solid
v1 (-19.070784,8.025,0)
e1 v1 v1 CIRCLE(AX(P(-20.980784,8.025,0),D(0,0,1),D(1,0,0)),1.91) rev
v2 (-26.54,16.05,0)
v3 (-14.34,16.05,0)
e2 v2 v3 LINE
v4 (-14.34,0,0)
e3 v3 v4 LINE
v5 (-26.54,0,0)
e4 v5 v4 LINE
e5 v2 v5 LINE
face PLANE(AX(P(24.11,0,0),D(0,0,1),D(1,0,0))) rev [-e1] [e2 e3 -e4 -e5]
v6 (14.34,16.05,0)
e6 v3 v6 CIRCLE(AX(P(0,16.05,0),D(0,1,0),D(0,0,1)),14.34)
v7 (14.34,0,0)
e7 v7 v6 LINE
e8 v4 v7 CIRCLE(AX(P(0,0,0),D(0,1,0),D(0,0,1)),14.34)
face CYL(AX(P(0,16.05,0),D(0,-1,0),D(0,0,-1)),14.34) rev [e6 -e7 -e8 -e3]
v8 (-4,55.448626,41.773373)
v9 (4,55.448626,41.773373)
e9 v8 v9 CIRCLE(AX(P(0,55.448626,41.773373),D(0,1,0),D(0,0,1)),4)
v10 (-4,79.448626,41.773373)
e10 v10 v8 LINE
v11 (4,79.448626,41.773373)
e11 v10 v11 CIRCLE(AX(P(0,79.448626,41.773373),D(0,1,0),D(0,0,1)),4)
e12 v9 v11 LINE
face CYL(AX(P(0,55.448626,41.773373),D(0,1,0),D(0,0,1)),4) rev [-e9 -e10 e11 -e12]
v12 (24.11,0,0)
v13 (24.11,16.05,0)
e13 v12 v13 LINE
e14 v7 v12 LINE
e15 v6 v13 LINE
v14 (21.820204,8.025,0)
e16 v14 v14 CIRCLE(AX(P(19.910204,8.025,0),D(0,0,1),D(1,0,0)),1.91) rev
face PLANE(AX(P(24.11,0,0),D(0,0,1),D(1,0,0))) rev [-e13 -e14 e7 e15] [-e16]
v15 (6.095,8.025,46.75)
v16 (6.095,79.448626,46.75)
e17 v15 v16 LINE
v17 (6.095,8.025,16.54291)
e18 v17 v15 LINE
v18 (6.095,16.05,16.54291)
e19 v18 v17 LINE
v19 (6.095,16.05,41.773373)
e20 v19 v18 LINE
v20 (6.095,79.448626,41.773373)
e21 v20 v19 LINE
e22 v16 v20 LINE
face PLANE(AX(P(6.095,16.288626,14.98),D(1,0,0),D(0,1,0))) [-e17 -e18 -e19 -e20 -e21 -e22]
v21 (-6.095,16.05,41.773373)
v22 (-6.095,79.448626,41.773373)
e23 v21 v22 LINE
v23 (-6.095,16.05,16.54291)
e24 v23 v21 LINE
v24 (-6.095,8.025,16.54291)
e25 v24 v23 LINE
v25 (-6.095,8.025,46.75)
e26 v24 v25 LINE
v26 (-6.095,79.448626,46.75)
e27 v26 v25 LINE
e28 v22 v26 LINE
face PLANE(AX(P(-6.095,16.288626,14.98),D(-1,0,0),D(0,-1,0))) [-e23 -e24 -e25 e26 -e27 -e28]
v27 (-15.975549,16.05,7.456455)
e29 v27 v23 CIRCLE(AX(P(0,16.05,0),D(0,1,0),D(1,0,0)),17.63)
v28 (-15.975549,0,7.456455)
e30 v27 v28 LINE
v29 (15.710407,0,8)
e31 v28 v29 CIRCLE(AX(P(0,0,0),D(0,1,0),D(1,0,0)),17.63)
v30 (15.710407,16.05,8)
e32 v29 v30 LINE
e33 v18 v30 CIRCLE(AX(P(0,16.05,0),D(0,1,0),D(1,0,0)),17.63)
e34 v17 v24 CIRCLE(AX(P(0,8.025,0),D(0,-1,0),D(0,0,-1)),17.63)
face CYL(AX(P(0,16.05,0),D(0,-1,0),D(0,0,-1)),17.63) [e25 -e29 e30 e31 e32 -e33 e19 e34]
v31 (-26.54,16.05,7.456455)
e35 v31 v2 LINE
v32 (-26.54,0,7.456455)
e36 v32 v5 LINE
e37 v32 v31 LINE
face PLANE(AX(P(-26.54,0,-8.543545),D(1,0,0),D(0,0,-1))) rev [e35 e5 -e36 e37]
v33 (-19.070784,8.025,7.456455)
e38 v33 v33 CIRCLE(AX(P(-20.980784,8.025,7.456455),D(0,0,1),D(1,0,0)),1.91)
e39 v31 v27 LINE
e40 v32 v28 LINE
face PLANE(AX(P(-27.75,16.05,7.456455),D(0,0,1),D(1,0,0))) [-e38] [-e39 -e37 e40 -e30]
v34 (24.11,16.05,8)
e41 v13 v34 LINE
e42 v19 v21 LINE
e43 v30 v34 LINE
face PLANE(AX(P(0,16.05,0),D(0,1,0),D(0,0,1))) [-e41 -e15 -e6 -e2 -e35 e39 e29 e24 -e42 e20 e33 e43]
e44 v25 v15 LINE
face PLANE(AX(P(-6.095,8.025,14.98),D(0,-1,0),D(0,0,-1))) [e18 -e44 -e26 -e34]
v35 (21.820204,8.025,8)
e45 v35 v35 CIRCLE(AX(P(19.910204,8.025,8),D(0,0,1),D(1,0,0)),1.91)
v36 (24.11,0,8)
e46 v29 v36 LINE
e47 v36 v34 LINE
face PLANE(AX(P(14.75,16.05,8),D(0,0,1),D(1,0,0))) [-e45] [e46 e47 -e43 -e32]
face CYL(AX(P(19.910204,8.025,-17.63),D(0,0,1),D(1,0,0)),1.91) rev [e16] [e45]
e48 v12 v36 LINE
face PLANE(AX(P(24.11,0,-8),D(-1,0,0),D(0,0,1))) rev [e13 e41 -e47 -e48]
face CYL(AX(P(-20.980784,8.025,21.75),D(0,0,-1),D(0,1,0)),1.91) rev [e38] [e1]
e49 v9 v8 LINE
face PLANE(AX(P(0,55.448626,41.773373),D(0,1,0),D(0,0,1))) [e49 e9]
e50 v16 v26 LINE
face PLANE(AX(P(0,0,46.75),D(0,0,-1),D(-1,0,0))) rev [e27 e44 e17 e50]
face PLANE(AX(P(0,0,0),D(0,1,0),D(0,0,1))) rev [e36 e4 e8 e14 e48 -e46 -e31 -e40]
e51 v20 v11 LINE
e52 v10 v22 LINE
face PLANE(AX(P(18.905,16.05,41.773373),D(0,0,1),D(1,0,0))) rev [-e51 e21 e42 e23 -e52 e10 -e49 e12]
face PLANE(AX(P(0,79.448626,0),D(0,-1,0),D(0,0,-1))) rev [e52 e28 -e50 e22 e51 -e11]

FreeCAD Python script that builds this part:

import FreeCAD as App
import Part
import Sketcher

V = App.Vector
Q = App.Units.Quantity

doc = App.newDocument("Part")
body = doc.addObject("PartDesign::Body", "Body")

sketch1 = body.newObject("Sketcher::SketchObject", "Sketch")
sketch1.AttachmentSupport = (doc.getObject("XZ_Plane"), [""])
sketch1.MapMode = "FlatFace"
sketch1.addGeometry([
    Part.Circle(V(0, 0, 0), V(0, 0, 1), 18),
    Part.Circle(V(0, 0, 0), V(0, 0, 1), 14),
], False)
sketch1.addConstraint([
    Sketcher.Constraint("Coincident", 0, 3, -1, 1),
    Sketcher.Constraint("Coincident", 1, 3, -1, 1),
    Sketcher.Constraint("Diameter", 0, Q("35.26 mm")),
    Sketcher.Constraint("Diameter", 1, Q("28.68 mm")),
])
pad1 = body.newObject("PartDesign::Pad", "Pad")
pad1.Profile = sketch1
pad1.Length = 16.05
pad1.Reversed = True

sketch2 = body.newObject("Sketcher::SketchObject", "Sketch001")
sketch2.AttachmentSupport = (doc.getObject("YZ_Plane"), [""])
sketch2.MapMode = "FlatFace"
sketch2.AttachmentOffset = App.Placement(V(0, 0, 17.75), App.Rotation())
sketch2.addGeometry([
    Part.LineSegment(V(16, 8, 0), V(0, 8, 0)),
    Part.LineSegment(V(0, 8, 0), V(0, -8, 0)),
    Part.LineSegment(V(0, -8, 0), V(16, -8, 0)),
    Part.LineSegment(V(16, -8, 0), V(16, 8, 0)),
], False)
sketch2.addConstraint([
    Sketcher.Constraint("Coincident", 0, 2, 1, 1),
    Sketcher.Constraint("Coincident", 1, 2, 2, 1),
    Sketcher.Constraint("Coincident", 2, 2, 3, 1),
    Sketcher.Constraint("Coincident", 3, 2, 0, 1),
    Sketcher.Constraint("Horizontal", 0),
    Sketcher.Constraint("Vertical", 1),
    Sketcher.Constraint("Horizontal", 2),
    Sketcher.Constraint("Vertical", 3),
    Sketcher.Constraint("Symmetric", 0, 2, 1, 2, -1, 1),
    Sketcher.Constraint("DistanceY", 1, 2, 1, 1, Q("16 mm")),
    Sketcher.Constraint("DistanceX", 0, 2, 0, 1, Q("16.05 mm")),
])
pad2 = body.newObject("PartDesign::Pad", "Pad001")
pad2.Profile = sketch2
pad2.Type = "TwoLengths"
pad2.Length = 9.77
pad2.Length2 = 3

sketch3 = body.newObject("Sketcher::SketchObject", "Sketch002")
sketch3.AttachmentSupport = (doc.getObject("XZ_Plane"), [""])
sketch3.MapMode = "FlatFace"
sketch3.AttachmentOffset = App.Placement(V(0, 0, -16.05), App.Rotation())
sketch3.addGeometry([
    Part.LineSegment(V(24.1, -8, 0), V(24.1, 8, 0)),
    Part.LineSegment(V(24.1, 8, 0), V(27.5, 8, 0)),
    Part.LineSegment(V(27.5, 8, 0), V(27.5, -8, 0)),
    Part.LineSegment(V(27.5, -8, 0), V(24.1, -8, 0)),
], False)
sketch3.addConstraint([
    Sketcher.Constraint("Coincident", 0, 2, 1, 1),
    Sketcher.Constraint("Coincident", 1, 2, 2, 1),
    Sketcher.Constraint("Coincident", 2, 2, 3, 1),
    Sketcher.Constraint("Coincident", 3, 2, 0, 1),
    Sketcher.Constraint("Vertical", 0),
    Sketcher.Constraint("Horizontal", 1),
    Sketcher.Constraint("Vertical", 2),
    Sketcher.Constraint("Horizontal", 3),
    Sketcher.Constraint("DistanceY", 0, 1, 0, 2, Q("16 mm")),
    Sketcher.Constraint("DistanceY", -1, 1, 0, 2, Q("8 mm")),
    Sketcher.Constraint("DistanceX", 1, 1, 1, 2, Q("3.41 mm")),
    Sketcher.Constraint("DistanceX", -1, 1, 0, 2, Q("24.11 mm")),
])
pocket1 = body.newObject("PartDesign::Pocket", "Pocket")
pocket1.Profile = sketch3
pocket1.Type = "ThroughAll"
pocket1.Reversed = True

sketch4 = body.newObject("Sketcher::SketchObject", "Sketch003")
sketch4.AttachmentSupport = (doc.getObject("XY_Plane"), [""])
sketch4.MapMode = "FlatFace"
sketch4.AttachmentOffset = App.Placement(V(0, 0, 8), App.Rotation())
sketch4.addGeometry(Part.Circle(V(19.9, 8, 0), V(0, 0, 1), 1.9), False)
sketch4.addConstraint([
    Sketcher.Constraint("Diameter", 0, Q("3.82 mm")),
    Sketcher.Constraint("DistanceY", -1, 1, 0, 3, Q("8.025 mm")),
    Sketcher.Constraint("DistanceX", -1, 1, 0, 3, Q("19.910204 mm")),
])
pocket2 = body.newObject("PartDesign::Pocket", "Pocket001")
pocket2.Profile = sketch4
pocket2.Type = "ThroughAll"

sketch5 = body.newObject("Sketcher::SketchObject", "Sketch004")
sketch5.AttachmentSupport = (doc.getObject("XY_Plane"), [""])
sketch5.MapMode = "FlatFace"
sketch5.AttachmentOffset = App.Placement(V(0, 0, 17.75), App.Rotation())
sketch5.addGeometry([
    Part.LineSegment(V(-6, 16, 0), V(-6, 8, 0)),
    Part.LineSegment(V(-6, 8, 0), V(6, 8, 0)),
    Part.LineSegment(V(6, 8, 0), V(6, 16, 0)),
    Part.LineSegment(V(6, 16, 0), V(-6, 16, 0)),
], False)
sketch5.addConstraint([
    Sketcher.Constraint("Coincident", 0, 2, 1, 1),
    Sketcher.Constraint("Coincident", 1, 2, 2, 1),
    Sketcher.Constraint("Coincident", 2, 2, 3, 1),
    Sketcher.Constraint("Coincident", 3, 2, 0, 1),
    Sketcher.Constraint("Vertical", 0),
    Sketcher.Constraint("Horizontal", 1),
    Sketcher.Constraint("Vertical", 2),
    Sketcher.Constraint("Horizontal", 3),
    Sketcher.Constraint("DistanceX", 1, 1, 1, 2, Q("12.19 mm")),
    Sketcher.Constraint("DistanceX", 0, 2, -1, 1, Q("6.095 mm")),
    Sketcher.Constraint("DistanceY", -1, 1, 0, 2, Q("8.025 mm")),
    Sketcher.Constraint("DistanceY", 0, 2, 0, 1, Q("8.263626 mm")),
])
pad3 = body.newObject("PartDesign::Pad", "Pad002")
pad3.Profile = sketch5
pad3.Type = "TwoLengths"
pad3.Length = 4
pad3.Length2 = 2.77

sketch6 = body.newObject("Sketcher::SketchObject", "Sketch005")
sketch6.AttachmentSupport = (doc.getObject("XZ_Plane"), [""])
sketch6.MapMode = "FlatFace"
sketch6.AttachmentOffset = App.Placement(V(0, 0, -16.288626), App.Rotation())
sketch6.addGeometry([
    Part.LineSegment(V(-6, 15, 0), V(-6, 22, 0)),
    Part.LineSegment(V(-6, 22, 0), V(6, 22, 0)),
    Part.LineSegment(V(6, 22, 0), V(6, 15, 0)),
    Part.LineSegment(V(6, 15, 0), V(-6, 15, 0)),
], False)
sketch6.addConstraint([
    Sketcher.Constraint("Coincident", 0, 2, 1, 1),
    Sketcher.Constraint("Coincident", 1, 2, 2, 1),
    Sketcher.Constraint("Coincident", 2, 2, 3, 1),
    Sketcher.Constraint("Coincident", 3, 2, 0, 1),
    Sketcher.Constraint("Vertical", 0),
    Sketcher.Constraint("Horizontal", 1),
    Sketcher.Constraint("Vertical", 2),
    Sketcher.Constraint("Horizontal", 3),
    Sketcher.Constraint("DistanceX", 1, 1, 1, 2, Q("12.19 mm")),
    Sketcher.Constraint("DistanceY", 0, 1, 0, 2, Q("6.77 mm")),
    Sketcher.Constraint("DistanceY", -1, 1, 0, 2, Q("21.75 mm")),
    Sketcher.Constraint("DistanceX", 0, 2, -1, 1, Q("6.095 mm")),
])
pad4 = body.newObject("PartDesign::Pad", "Pad003")
pad4.Profile = sketch6
pad4.Length = 63
pad4.Reversed = True

sketch7 = body.newObject("Sketcher::SketchObject", "Sketch006")
sketch7.AttachmentSupport = (doc.getObject("XZ_Plane"), [""])
sketch7.MapMode = "FlatFace"
sketch7.AttachmentOffset = App.Placement(V(0, 0, -79.288626), App.Rotation())
sketch7.addGeometry([
    Part.LineSegment(V(-6, 15, 0), V(-6, 22, 0)),
    Part.LineSegment(V(-6, 22, 0), V(6, 22, 0)),
    Part.LineSegment(V(6, 22, 0), V(6, 15, 0)),
    Part.LineSegment(V(6, 15, 0), V(-6, 15, 0)),
], False)
sketch7.addConstraint([
    Sketcher.Constraint("Coincident", 0, 2, 1, 1),
    Sketcher.Constraint("Coincident", 1, 2, 2, 1),
    Sketcher.Constraint("Coincident", 2, 2, 3, 1),
    Sketcher.Constraint("Coincident", 3, 2, 0, 1),
    Sketcher.Constraint("Vertical", 0),
    Sketcher.Constraint("Horizontal", 1),
    Sketcher.Constraint("Vertical", 2),
    Sketcher.Constraint("Horizontal", 3),
    Sketcher.Constraint("DistanceX", 1, 1, 1, 2, Q("12.19 mm")),
    Sketcher.Constraint("DistanceY", 0, 1, 0, 2, Q("6.77 mm")),
    Sketcher.Constraint("DistanceY", -1, 1, 0, 2, Q("21.75 mm")),
    Sketcher.Constraint("DistanceX", 0, 2, -1, 1, Q("6.095 mm")),
])
pad5 = body.newObject("PartDesign::Pad", "Pad004")
pad5.Profile = sketch7
pad5.Length = 0.16
pad5.Reversed = True

sketch8 = body.newObject("Sketcher::SketchObject", "Sketch007")
sketch8.AttachmentSupport = (doc.getObject("YZ_Plane"), [""])
sketch8.MapMode = "FlatFace"
sketch8.AttachmentOffset = App.Placement(V(0, 0, -17.75), App.Rotation())
sketch8.addGeometry([
    Part.LineSegment(V(16, 7, 0), V(0, 7, 0)),
    Part.LineSegment(V(0, 7, 0), V(0, -9, 0)),
    Part.LineSegment(V(0, -9, 0), V(16, -9, 0)),
    Part.LineSegment(V(16, -9, 0), V(16, 7, 0)),
], False)
sketch8.addConstraint([
    Sketcher.Constraint("Coincident", 0, 2, 1, 1),
    Sketcher.Constraint("Coincident", 1, 2, 2, 1),
    Sketcher.Constraint("Coincident", 2, 2, 3, 1),
    Sketcher.Constraint("Coincident", 3, 2, 0, 1),
    Sketcher.Constraint("Horizontal", 0),
    Sketcher.Constraint("Vertical", 1),
    Sketcher.Constraint("Horizontal", 2),
    Sketcher.Constraint("Vertical", 3),
    Sketcher.Constraint("PointOnObject", 0, 2, -2),
    Sketcher.Constraint("DistanceY", 1, 2, 1, 1, Q("16 mm")),
    Sketcher.Constraint("DistanceX", 0, 2, 0, 1, Q("16.05 mm")),
    Sketcher.Constraint("DistanceY", -1, 1, 0, 2, Q("7.456455 mm")),
])
pad6 = body.newObject("PartDesign::Pad", "Pad005")
pad6.Profile = sketch8
pad6.Type = "TwoLengths"
pad6.Length = 3.16
pad6.Length2 = 10

sketch9 = body.newObject("Sketcher::SketchObject", "Sketch008")
sketch9.AttachmentSupport = (doc.getObject("XZ_Plane"), [""])
sketch9.MapMode = "FlatFace"
sketch9.AttachmentOffset = App.Placement(V(0, 0, -16.05), App.Rotation())
sketch9.addGeometry([
    Part.LineSegment(V(-27.8, -8.5, 0), V(-27.8, 7.5, 0)),
    Part.LineSegment(V(-27.8, 7.5, 0), V(-26.5, 7.5, 0)),
    Part.LineSegment(V(-26.5, 7.5, 0), V(-26.5, -8.5, 0)),
    Part.LineSegment(V(-26.5, -8.5, 0), V(-27.8, -8.5, 0)),
], False)
sketch9.addConstraint([
    Sketcher.Constraint("Coincident", 0, 2, 1, 1),
    Sketcher.Constraint("Coincident", 1, 2, 2, 1),
    Sketcher.Constraint("Coincident", 2, 2, 3, 1),
    Sketcher.Constraint("Coincident", 3, 2, 0, 1),
    Sketcher.Constraint("Vertical", 0),
    Sketcher.Constraint("Horizontal", 1),
    Sketcher.Constraint("Vertical", 2),
    Sketcher.Constraint("Horizontal", 3),
    Sketcher.Constraint("DistanceY", 0, 1, 0, 2, Q("16 mm")),
    Sketcher.Constraint("DistanceX", 1, 1, 1, 2, Q("1.21 mm")),
    Sketcher.Constraint("DistanceX", 0, 2, -1, 1, Q("27.75 mm")),
    Sketcher.Constraint("DistanceY", -1, 1, 0, 2, Q("7.456455 mm")),
])
pocket3 = body.newObject("PartDesign::Pocket", "Pocket002")
pocket3.Profile = sketch9
pocket3.Type = "ThroughAll"
pocket3.Reversed = True

sketch10 = body.newObject("Sketcher::SketchObject", "Sketch009")
sketch10.AttachmentSupport = (doc.getObject("XY_Plane"), [""])
sketch10.MapMode = "FlatFace"
sketch10.AttachmentOffset = App.Placement(V(0, 0, -8.543545), App.Rotation())
sketch10.addGeometry(Part.Circle(V(-21, 8, 0), V(0, 0, 1), 1.9), False)
sketch10.addConstraint([
    Sketcher.Constraint("Diameter", 0, Q("3.82 mm")),
    Sketcher.Constraint("DistanceY", -1, 1, 0, 3, Q("8.025 mm")),
    Sketcher.Constraint("DistanceX", 0, 3, -1, 1, Q("20.980784 mm")),
])
pocket4 = body.newObject("PartDesign::Pocket", "Pocket003")
pocket4.Profile = sketch10
pocket4.Type = "ThroughAll"
pocket4.Reversed = True

sketch11 = body.newObject("Sketcher::SketchObject", "Sketch010")
sketch11.AttachmentSupport = (doc.getObject("XZ_Plane"), [""])
sketch11.MapMode = "FlatFace"
sketch11.AttachmentOffset = App.Placement(V(0, 0, -79.448626), App.Rotation())
sketch11.addGeometry(Part.Circle(V(0, 15, 0), V(0, 0, 1), 4), False)
sketch11.addConstraint([
    Sketcher.Constraint("PointOnObject", 0, 3, -2),
    Sketcher.Constraint("Diameter", 0, Q("8.1 mm")),
    Sketcher.Constraint("DistanceY", -1, 1, 0, 3, Q("14.98 mm")),
])
pocket5 = body.newObject("PartDesign::Pocket", "Pocket004")
pocket5.Profile = sketch11
pocket5.Length = 24
pocket5.Reversed = True

sketch12 = body.newObject("Sketcher::SketchObject", "Sketch011")
sketch12.AttachmentSupport = (doc.getObject("XZ_Plane"), [""])
sketch12.MapMode = "FlatFace"
sketch12.AttachmentOffset = App.Placement(V(0, 0, -16.05), App.Rotation())
sketch12.addGeometry([
    Part.LineSegment(V(-32, -20, 0), V(-32, 0, 0)),
    Part.LineSegment(V(-32, 0, 0), V(24, 0, 0)),
    Part.LineSegment(V(24, 0, 0), V(24, -20, 0)),
    Part.LineSegment(V(24, -20, 0), V(-32, -20, 0)),
], False)
sketch12.addConstraint([
    Sketcher.Constraint("Coincident", 0, 2, 1, 1),
    Sketcher.Constraint("Coincident", 1, 2, 2, 1),
    Sketcher.Constraint("Coincident", 2, 2, 3, 1),
    Sketcher.Constraint("Coincident", 3, 2, 0, 1),
    Sketcher.Constraint("Vertical", 0),
    Sketcher.Constraint("Horizontal", 1),
    Sketcher.Constraint("Vertical", 2),
    Sketcher.Constraint("Horizontal", 3),
    Sketcher.Constraint("PointOnObject", 0, 2, -1),
    Sketcher.Constraint("DistanceX", -1, 1, 1, 2, Q("24.11 mm")),
    Sketcher.Constraint("DistanceX", 1, 1, 1, 2, Q("56.400519 mm")),
    Sketcher.Constraint("DistanceY", 0, 1, 0, 2, Q("19.93501 mm")),
])
pocket6 = body.newObject("PartDesign::Pocket", "Pocket005")
pocket6.Profile = sketch12
pocket6.Type = "ThroughAll"
pocket6.Reversed = True

sketch13 = body.newObject("Sketcher::SketchObject", "Sketch012")
sketch13.AttachmentSupport = (doc.getObject("XY_Plane"), [""])
sketch13.MapMode = "FlatFace"
sketch13.AttachmentOffset = App.Placement(V(0, 0, 21.75), App.Rotation())
sketch13.addGeometry([
    Part.LineSegment(V(-6, 79, 0), V(-6, 8, 0)),
    Part.LineSegment(V(-6, 8, 0), V(6, 8, 0)),
    Part.LineSegment(V(6, 8, 0), V(6, 79, 0)),
    Part.LineSegment(V(6, 79, 0), V(-6, 79, 0)),
], False)
sketch13.addConstraint([
    Sketcher.Constraint("Coincident", 0, 2, 1, 1),
    Sketcher.Constraint("Coincident", 1, 2, 2, 1),
    Sketcher.Constraint("Coincident", 2, 2, 3, 1),
    Sketcher.Constraint("Coincident", 3, 2, 0, 1),
    Sketcher.Constraint("Vertical", 0),
    Sketcher.Constraint("Horizontal", 1),
    Sketcher.Constraint("Vertical", 2),
    Sketcher.Constraint("Horizontal", 3),
    Sketcher.Constraint("DistanceX", 1, 1, 1, 2, Q("12.19 mm")),
    Sketcher.Constraint("DistanceX", 0, 2, -1, 1, Q("6.095 mm")),
    Sketcher.Constraint("DistanceY", -1, 1, 0, 2, Q("8.025 mm")),
    Sketcher.Constraint("DistanceY", 0, 2, 0, 1, Q("71.423626 mm")),
])
pad7 = body.newObject("PartDesign::Pad", "Pad006")
pad7.Profile = sketch13
pad7.Length = 25

sketch14 = body.newObject("Sketcher::SketchObject", "Sketch013")
sketch14.AttachmentSupport = (doc.getObject("YZ_Plane"), [""])
sketch14.MapMode = "FlatFace"
sketch14.AttachmentOffset = App.Placement(V(0, 0, -6.095), App.Rotation())
sketch14.addGeometry([
    Part.LineSegment(V(79, 15, 0), V(16, 15, 0)),
    Part.LineSegment(V(16, 15, 0), V(16, 42, 0)),
    Part.LineSegment(V(16, 42, 0), V(79, 42, 0)),
    Part.LineSegment(V(79, 42, 0), V(79, 15, 0)),
], False)
sketch14.addConstraint([
    Sketcher.Constraint("Coincident", 0, 2, 1, 1),
    Sketcher.Constraint("Coincident", 1, 2, 2, 1),
    Sketcher.Constraint("Coincident", 2, 2, 3, 1),
    Sketcher.Constraint("Coincident", 3, 2, 0, 1),
    Sketcher.Constraint("Horizontal", 0),
    Sketcher.Constraint("Vertical", 1),
    Sketcher.Constraint("Horizontal", 2),
    Sketcher.Constraint("Vertical", 3),
    Sketcher.Constraint("DistanceX", -1, 1, 0, 2, Q("16.05 mm")),
    Sketcher.Constraint("DistanceY", -1, 1, 0, 2, Q("14.98 mm")),
    Sketcher.Constraint("DistanceX", 0, 2, 0, 1, Q("63.398626 mm")),
    Sketcher.Constraint("DistanceY", 1, 1, 1, 2, Q("26.793373 mm")),
])
pocket7 = body.newObject("PartDesign::Pocket", "Pocket006")
pocket7.Profile = sketch14
pocket7.Length = 25
pocket7.Reversed = True

sketch15 = body.newObject("Sketcher::SketchObject", "Sketch014")
sketch15.AttachmentSupport = (doc.getObject("XZ_Plane"), [""])
sketch15.MapMode = "FlatFace"
sketch15.AttachmentOffset = App.Placement(V(0, 0, -79.448626), App.Rotation())
sketch15.addGeometry(Part.Circle(V(0, 41.8, 0), V(0, 0, 1), 4), False)
sketch15.addConstraint([
    Sketcher.Constraint("PointOnObject", 0, 3, -2),
    Sketcher.Constraint("Diameter", 0, Q("8 mm")),
    Sketcher.Constraint("DistanceY", -1, 1, 0, 3, Q("41.773373 mm")),
])
pocket8 = body.newObject("PartDesign::Pocket", "Pocket007")
pocket8.Profile = sketch15
pocket8.Length = 24
pocket8.Reversed = True

doc.recompute()
